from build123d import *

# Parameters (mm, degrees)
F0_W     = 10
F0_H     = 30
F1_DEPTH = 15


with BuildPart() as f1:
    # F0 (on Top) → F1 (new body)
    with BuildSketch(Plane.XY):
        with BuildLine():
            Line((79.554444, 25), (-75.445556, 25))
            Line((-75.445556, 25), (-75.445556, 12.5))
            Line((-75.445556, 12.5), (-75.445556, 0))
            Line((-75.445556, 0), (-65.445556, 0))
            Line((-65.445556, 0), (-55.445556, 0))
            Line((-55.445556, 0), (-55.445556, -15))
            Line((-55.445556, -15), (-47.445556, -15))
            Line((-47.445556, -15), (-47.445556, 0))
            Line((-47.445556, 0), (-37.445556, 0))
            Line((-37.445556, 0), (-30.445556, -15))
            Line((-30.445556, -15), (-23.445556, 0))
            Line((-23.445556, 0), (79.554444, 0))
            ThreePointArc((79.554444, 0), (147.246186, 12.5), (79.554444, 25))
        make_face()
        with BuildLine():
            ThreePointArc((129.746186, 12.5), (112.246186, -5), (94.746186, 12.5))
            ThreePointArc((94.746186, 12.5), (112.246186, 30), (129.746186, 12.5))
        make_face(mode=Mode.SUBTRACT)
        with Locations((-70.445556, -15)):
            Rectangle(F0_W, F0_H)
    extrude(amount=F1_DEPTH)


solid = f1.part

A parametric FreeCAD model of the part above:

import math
import FreeCAD as App
import Part
import Sketcher
Q = App.Units.Quantity

doc = App.newDocument("Part")
params = doc.addObject("Spreadsheet::Sheet", "Params")
for row, (alias, value) in enumerate([
    ("sketch1_diameter", "35 mm"),
    ("sketch1_radius", "35 mm"),
    ("sketch1_width", "155 mm"),
    ("sketch1_width2", "10 mm"),
    ("sketch1_width3", "8 mm"),
    ("pad1_length", "15 mm"),
], start=1):
    params.set(f"A{row}", alias)
    params.set(f"B{row}", "=" + value)
    params.setAlias(f"B{row}", alias)

body = doc.addObject("PartDesign::Body", "Body")

# Sketch on XY plane
sketch1 = body.newObject("Sketcher::SketchObject", "Sketch")
sketch1.AttachmentSupport = (doc.getObject("XY_Plane"), [""])
sketch1.MapMode = "FlatFace"
sketch1.addGeometry(Part.LineSegment(App.Vector(79.554444, 25, 0), App.Vector(-75.445556, 25, 0)), False)
sketch1.addGeometry(Part.LineSegment(App.Vector(-75.445556, 25, 0), App.Vector(-75.445556, -30, 0)), False)
sketch1.addGeometry(Part.LineSegment(App.Vector(-75.445556, -30, 0), App.Vector(-65.445556, -30, 0)), False)
sketch1.addGeometry(Part.LineSegment(App.Vector(-65.445556, -30, 0), App.Vector(-65.445556, 0, 0)), False)
sketch1.addGeometry(Part.LineSegment(App.Vector(-65.445556, 0, 0), App.Vector(-55.445556, 0, 0)), False)
sketch1.addGeometry(Part.LineSegment(App.Vector(-55.445556, 0, 0), App.Vector(-55.445556, -15, 0)), False)
sketch1.addGeometry(Part.LineSegment(App.Vector(-55.445556, -15, 0), App.Vector(-47.445556, -15, 0)), False)
sketch1.addGeometry(Part.LineSegment(App.Vector(-47.445556, -15, 0), App.Vector(-47.445556, 0, 0)), False)
sketch1.addGeometry(Part.LineSegment(App.Vector(-47.445556, 0, 0), App.Vector(-37.445556, 0, 0)), False)
sketch1.addGeometry(Part.LineSegment(App.Vector(-37.445556, 0, 0), App.Vector(-30.445556, -15, 0)), False)
sketch1.addGeometry(Part.LineSegment(App.Vector(-30.445556, -15, 0), App.Vector(-23.445556, 0, 0)), False)
sketch1.addGeometry(Part.LineSegment(App.Vector(-23.445556, 0, 0), App.Vector(79.554444, 0, 0)), False)
sketch1.addGeometry(Part.ArcOfCircle(Part.Circle(App.Vector(112.246186, 12.5, 0), App.Vector(0, 0, 1), 35), math.radians(-159.075168), math.radians(159.075168)), False)
sketch1.addGeometry(Part.Circle(App.Vector(112.246186, 12.5, 0), App.Vector(0, 0, 1), 17.5), False)
sketch1.addConstraint(Sketcher.Constraint("Coincident", 0, 2, 1, 1))
sketch1.addConstraint(Sketcher.Constraint("Coincident", 1, 2, 2, 1))
sketch1.addConstraint(Sketcher.Constraint("Coincident", 2, 2, 3, 1))
sketch1.addConstraint(Sketcher.Constraint("Coincident", 3, 2, 4, 1))
sketch1.addConstraint(Sketcher.Constraint("Coincident", 4, 2, 5, 1))
sketch1.addConstraint(Sketcher.Constraint("Coincident", 5, 2, 6, 1))
sketch1.addConstraint(Sketcher.Constraint("Coincident", 6, 2, 7, 1))
sketch1.addConstraint(Sketcher.Constraint("Coincident", 7, 2, 8, 1))
sketch1.addConstraint(Sketcher.Constraint("Coincident", 8, 2, 9, 1))
sketch1.addConstraint(Sketcher.Constraint("Coincident", 9, 2, 10, 1))
sketch1.addConstraint(Sketcher.Constraint("Coincident", 10, 2, 11, 1))
sketch1.addConstraint(Sketcher.Constraint("Coincident", 11, 2, 12, 1))
sketch1.addConstraint(Sketcher.Constraint("Coincident", 12, 2, 0, 1))
sketch1.addConstraint(Sketcher.Constraint("Horizontal", 0))
sketch1.addConstraint(Sketcher.Constraint("Vertical", 1))
sketch1.addConstraint(Sketcher.Constraint("Horizontal", 2))
sketch1.addConstraint(Sketcher.Constraint("Vertical", 3))
sketch1.addConstraint(Sketcher.Constraint("Horizontal", 4))
sketch1.addConstraint(Sketcher.Constraint("Vertical", 5))
sketch1.addConstraint(Sketcher.Constraint("Horizontal", 6))
sketch1.addConstraint(Sketcher.Constraint("Vertical", 7))
sketch1.addConstraint(Sketcher.Constraint("Horizontal", 8))
sketch1.addConstraint(Sketcher.Constraint("Horizontal", 11))
sketch1.addConstraint(Sketcher.Constraint("Coincident", 13, 3, 12, 3))
sketch1.addConstraint(Sketcher.Constraint("PointOnObject", 3, 2, -1))
sketch1.addConstraint(Sketcher.Constraint("PointOnObject", 7, 2, -1))
sketch1.addConstraint(Sketcher.Constraint("PointOnObject", 10, 2, -1))
sketch1.addConstraint(Sketcher.Constraint("Horizontal", 6, 2, 9, 2))
sketch1.addConstraint(Sketcher.Constraint("Vertical", 11, 2, 12, 2))
sketch1.addConstraint(Sketcher.Constraint("Equal", 2, 4))
sketch1.addConstraint(Sketcher.Constraint("Equal", 4, 8))
sketch1.addConstraint(Sketcher.Constraint("Equal", 9, 10))
sketch1.addConstraint(Sketcher.Constraint("Diameter", 13, Q("35 mm")))
sketch1.addConstraint(Sketcher.Constraint("Radius", 12, Q("35 mm")))
sketch1.addConstraint(Sketcher.Constraint("DistanceX", 0, 2, 0, 1, Q("155 mm")))
sketch1.addConstraint(Sketcher.Constraint("DistanceX", 2, 1, 2, 2, Q("10 mm")))
sketch1.addConstraint(Sketcher.Constraint("DistanceX", 6, 1, 6, 2, Q("8 mm")))
sketch1.addConstraint(Sketcher.Constraint("DistanceX", 11, 1, 11, 2, Q("103 mm")))
sketch1.addConstraint(Sketcher.Constraint("DistanceY", 1, 2, 1, 1, Q("55 mm")))
sketch1.addConstraint(Sketcher.Constraint("DistanceY", 3, 1, 3, 2, Q("30 mm")))
sketch1.addConstraint(Sketcher.Constraint("DistanceY", 5, 2, 5, 1, Q("15 mm")))
sketch1.addConstraint(Sketcher.Constraint("DistanceX", -1, 1, 12, 3, Q("112.246186 mm")))
sketch1.setExpression("Constraints[32]", "Params.sketch1_diameter")
sketch1.setExpression("Constraints[33]", "Params.sketch1_radius")
sketch1.setExpression("Constraints[34]", "Params.sketch1_width")
sketch1.setExpression("Constraints[35]", "Params.sketch1_width2")
sketch1.setExpression("Constraints[36]", "Params.sketch1_width3")
pad1 = body.newObject("PartDesign::Pad", "Pad")
pad1.Profile = sketch1
pad1.setExpression("Length", "Params.pad1_length")

doc.recompute()
